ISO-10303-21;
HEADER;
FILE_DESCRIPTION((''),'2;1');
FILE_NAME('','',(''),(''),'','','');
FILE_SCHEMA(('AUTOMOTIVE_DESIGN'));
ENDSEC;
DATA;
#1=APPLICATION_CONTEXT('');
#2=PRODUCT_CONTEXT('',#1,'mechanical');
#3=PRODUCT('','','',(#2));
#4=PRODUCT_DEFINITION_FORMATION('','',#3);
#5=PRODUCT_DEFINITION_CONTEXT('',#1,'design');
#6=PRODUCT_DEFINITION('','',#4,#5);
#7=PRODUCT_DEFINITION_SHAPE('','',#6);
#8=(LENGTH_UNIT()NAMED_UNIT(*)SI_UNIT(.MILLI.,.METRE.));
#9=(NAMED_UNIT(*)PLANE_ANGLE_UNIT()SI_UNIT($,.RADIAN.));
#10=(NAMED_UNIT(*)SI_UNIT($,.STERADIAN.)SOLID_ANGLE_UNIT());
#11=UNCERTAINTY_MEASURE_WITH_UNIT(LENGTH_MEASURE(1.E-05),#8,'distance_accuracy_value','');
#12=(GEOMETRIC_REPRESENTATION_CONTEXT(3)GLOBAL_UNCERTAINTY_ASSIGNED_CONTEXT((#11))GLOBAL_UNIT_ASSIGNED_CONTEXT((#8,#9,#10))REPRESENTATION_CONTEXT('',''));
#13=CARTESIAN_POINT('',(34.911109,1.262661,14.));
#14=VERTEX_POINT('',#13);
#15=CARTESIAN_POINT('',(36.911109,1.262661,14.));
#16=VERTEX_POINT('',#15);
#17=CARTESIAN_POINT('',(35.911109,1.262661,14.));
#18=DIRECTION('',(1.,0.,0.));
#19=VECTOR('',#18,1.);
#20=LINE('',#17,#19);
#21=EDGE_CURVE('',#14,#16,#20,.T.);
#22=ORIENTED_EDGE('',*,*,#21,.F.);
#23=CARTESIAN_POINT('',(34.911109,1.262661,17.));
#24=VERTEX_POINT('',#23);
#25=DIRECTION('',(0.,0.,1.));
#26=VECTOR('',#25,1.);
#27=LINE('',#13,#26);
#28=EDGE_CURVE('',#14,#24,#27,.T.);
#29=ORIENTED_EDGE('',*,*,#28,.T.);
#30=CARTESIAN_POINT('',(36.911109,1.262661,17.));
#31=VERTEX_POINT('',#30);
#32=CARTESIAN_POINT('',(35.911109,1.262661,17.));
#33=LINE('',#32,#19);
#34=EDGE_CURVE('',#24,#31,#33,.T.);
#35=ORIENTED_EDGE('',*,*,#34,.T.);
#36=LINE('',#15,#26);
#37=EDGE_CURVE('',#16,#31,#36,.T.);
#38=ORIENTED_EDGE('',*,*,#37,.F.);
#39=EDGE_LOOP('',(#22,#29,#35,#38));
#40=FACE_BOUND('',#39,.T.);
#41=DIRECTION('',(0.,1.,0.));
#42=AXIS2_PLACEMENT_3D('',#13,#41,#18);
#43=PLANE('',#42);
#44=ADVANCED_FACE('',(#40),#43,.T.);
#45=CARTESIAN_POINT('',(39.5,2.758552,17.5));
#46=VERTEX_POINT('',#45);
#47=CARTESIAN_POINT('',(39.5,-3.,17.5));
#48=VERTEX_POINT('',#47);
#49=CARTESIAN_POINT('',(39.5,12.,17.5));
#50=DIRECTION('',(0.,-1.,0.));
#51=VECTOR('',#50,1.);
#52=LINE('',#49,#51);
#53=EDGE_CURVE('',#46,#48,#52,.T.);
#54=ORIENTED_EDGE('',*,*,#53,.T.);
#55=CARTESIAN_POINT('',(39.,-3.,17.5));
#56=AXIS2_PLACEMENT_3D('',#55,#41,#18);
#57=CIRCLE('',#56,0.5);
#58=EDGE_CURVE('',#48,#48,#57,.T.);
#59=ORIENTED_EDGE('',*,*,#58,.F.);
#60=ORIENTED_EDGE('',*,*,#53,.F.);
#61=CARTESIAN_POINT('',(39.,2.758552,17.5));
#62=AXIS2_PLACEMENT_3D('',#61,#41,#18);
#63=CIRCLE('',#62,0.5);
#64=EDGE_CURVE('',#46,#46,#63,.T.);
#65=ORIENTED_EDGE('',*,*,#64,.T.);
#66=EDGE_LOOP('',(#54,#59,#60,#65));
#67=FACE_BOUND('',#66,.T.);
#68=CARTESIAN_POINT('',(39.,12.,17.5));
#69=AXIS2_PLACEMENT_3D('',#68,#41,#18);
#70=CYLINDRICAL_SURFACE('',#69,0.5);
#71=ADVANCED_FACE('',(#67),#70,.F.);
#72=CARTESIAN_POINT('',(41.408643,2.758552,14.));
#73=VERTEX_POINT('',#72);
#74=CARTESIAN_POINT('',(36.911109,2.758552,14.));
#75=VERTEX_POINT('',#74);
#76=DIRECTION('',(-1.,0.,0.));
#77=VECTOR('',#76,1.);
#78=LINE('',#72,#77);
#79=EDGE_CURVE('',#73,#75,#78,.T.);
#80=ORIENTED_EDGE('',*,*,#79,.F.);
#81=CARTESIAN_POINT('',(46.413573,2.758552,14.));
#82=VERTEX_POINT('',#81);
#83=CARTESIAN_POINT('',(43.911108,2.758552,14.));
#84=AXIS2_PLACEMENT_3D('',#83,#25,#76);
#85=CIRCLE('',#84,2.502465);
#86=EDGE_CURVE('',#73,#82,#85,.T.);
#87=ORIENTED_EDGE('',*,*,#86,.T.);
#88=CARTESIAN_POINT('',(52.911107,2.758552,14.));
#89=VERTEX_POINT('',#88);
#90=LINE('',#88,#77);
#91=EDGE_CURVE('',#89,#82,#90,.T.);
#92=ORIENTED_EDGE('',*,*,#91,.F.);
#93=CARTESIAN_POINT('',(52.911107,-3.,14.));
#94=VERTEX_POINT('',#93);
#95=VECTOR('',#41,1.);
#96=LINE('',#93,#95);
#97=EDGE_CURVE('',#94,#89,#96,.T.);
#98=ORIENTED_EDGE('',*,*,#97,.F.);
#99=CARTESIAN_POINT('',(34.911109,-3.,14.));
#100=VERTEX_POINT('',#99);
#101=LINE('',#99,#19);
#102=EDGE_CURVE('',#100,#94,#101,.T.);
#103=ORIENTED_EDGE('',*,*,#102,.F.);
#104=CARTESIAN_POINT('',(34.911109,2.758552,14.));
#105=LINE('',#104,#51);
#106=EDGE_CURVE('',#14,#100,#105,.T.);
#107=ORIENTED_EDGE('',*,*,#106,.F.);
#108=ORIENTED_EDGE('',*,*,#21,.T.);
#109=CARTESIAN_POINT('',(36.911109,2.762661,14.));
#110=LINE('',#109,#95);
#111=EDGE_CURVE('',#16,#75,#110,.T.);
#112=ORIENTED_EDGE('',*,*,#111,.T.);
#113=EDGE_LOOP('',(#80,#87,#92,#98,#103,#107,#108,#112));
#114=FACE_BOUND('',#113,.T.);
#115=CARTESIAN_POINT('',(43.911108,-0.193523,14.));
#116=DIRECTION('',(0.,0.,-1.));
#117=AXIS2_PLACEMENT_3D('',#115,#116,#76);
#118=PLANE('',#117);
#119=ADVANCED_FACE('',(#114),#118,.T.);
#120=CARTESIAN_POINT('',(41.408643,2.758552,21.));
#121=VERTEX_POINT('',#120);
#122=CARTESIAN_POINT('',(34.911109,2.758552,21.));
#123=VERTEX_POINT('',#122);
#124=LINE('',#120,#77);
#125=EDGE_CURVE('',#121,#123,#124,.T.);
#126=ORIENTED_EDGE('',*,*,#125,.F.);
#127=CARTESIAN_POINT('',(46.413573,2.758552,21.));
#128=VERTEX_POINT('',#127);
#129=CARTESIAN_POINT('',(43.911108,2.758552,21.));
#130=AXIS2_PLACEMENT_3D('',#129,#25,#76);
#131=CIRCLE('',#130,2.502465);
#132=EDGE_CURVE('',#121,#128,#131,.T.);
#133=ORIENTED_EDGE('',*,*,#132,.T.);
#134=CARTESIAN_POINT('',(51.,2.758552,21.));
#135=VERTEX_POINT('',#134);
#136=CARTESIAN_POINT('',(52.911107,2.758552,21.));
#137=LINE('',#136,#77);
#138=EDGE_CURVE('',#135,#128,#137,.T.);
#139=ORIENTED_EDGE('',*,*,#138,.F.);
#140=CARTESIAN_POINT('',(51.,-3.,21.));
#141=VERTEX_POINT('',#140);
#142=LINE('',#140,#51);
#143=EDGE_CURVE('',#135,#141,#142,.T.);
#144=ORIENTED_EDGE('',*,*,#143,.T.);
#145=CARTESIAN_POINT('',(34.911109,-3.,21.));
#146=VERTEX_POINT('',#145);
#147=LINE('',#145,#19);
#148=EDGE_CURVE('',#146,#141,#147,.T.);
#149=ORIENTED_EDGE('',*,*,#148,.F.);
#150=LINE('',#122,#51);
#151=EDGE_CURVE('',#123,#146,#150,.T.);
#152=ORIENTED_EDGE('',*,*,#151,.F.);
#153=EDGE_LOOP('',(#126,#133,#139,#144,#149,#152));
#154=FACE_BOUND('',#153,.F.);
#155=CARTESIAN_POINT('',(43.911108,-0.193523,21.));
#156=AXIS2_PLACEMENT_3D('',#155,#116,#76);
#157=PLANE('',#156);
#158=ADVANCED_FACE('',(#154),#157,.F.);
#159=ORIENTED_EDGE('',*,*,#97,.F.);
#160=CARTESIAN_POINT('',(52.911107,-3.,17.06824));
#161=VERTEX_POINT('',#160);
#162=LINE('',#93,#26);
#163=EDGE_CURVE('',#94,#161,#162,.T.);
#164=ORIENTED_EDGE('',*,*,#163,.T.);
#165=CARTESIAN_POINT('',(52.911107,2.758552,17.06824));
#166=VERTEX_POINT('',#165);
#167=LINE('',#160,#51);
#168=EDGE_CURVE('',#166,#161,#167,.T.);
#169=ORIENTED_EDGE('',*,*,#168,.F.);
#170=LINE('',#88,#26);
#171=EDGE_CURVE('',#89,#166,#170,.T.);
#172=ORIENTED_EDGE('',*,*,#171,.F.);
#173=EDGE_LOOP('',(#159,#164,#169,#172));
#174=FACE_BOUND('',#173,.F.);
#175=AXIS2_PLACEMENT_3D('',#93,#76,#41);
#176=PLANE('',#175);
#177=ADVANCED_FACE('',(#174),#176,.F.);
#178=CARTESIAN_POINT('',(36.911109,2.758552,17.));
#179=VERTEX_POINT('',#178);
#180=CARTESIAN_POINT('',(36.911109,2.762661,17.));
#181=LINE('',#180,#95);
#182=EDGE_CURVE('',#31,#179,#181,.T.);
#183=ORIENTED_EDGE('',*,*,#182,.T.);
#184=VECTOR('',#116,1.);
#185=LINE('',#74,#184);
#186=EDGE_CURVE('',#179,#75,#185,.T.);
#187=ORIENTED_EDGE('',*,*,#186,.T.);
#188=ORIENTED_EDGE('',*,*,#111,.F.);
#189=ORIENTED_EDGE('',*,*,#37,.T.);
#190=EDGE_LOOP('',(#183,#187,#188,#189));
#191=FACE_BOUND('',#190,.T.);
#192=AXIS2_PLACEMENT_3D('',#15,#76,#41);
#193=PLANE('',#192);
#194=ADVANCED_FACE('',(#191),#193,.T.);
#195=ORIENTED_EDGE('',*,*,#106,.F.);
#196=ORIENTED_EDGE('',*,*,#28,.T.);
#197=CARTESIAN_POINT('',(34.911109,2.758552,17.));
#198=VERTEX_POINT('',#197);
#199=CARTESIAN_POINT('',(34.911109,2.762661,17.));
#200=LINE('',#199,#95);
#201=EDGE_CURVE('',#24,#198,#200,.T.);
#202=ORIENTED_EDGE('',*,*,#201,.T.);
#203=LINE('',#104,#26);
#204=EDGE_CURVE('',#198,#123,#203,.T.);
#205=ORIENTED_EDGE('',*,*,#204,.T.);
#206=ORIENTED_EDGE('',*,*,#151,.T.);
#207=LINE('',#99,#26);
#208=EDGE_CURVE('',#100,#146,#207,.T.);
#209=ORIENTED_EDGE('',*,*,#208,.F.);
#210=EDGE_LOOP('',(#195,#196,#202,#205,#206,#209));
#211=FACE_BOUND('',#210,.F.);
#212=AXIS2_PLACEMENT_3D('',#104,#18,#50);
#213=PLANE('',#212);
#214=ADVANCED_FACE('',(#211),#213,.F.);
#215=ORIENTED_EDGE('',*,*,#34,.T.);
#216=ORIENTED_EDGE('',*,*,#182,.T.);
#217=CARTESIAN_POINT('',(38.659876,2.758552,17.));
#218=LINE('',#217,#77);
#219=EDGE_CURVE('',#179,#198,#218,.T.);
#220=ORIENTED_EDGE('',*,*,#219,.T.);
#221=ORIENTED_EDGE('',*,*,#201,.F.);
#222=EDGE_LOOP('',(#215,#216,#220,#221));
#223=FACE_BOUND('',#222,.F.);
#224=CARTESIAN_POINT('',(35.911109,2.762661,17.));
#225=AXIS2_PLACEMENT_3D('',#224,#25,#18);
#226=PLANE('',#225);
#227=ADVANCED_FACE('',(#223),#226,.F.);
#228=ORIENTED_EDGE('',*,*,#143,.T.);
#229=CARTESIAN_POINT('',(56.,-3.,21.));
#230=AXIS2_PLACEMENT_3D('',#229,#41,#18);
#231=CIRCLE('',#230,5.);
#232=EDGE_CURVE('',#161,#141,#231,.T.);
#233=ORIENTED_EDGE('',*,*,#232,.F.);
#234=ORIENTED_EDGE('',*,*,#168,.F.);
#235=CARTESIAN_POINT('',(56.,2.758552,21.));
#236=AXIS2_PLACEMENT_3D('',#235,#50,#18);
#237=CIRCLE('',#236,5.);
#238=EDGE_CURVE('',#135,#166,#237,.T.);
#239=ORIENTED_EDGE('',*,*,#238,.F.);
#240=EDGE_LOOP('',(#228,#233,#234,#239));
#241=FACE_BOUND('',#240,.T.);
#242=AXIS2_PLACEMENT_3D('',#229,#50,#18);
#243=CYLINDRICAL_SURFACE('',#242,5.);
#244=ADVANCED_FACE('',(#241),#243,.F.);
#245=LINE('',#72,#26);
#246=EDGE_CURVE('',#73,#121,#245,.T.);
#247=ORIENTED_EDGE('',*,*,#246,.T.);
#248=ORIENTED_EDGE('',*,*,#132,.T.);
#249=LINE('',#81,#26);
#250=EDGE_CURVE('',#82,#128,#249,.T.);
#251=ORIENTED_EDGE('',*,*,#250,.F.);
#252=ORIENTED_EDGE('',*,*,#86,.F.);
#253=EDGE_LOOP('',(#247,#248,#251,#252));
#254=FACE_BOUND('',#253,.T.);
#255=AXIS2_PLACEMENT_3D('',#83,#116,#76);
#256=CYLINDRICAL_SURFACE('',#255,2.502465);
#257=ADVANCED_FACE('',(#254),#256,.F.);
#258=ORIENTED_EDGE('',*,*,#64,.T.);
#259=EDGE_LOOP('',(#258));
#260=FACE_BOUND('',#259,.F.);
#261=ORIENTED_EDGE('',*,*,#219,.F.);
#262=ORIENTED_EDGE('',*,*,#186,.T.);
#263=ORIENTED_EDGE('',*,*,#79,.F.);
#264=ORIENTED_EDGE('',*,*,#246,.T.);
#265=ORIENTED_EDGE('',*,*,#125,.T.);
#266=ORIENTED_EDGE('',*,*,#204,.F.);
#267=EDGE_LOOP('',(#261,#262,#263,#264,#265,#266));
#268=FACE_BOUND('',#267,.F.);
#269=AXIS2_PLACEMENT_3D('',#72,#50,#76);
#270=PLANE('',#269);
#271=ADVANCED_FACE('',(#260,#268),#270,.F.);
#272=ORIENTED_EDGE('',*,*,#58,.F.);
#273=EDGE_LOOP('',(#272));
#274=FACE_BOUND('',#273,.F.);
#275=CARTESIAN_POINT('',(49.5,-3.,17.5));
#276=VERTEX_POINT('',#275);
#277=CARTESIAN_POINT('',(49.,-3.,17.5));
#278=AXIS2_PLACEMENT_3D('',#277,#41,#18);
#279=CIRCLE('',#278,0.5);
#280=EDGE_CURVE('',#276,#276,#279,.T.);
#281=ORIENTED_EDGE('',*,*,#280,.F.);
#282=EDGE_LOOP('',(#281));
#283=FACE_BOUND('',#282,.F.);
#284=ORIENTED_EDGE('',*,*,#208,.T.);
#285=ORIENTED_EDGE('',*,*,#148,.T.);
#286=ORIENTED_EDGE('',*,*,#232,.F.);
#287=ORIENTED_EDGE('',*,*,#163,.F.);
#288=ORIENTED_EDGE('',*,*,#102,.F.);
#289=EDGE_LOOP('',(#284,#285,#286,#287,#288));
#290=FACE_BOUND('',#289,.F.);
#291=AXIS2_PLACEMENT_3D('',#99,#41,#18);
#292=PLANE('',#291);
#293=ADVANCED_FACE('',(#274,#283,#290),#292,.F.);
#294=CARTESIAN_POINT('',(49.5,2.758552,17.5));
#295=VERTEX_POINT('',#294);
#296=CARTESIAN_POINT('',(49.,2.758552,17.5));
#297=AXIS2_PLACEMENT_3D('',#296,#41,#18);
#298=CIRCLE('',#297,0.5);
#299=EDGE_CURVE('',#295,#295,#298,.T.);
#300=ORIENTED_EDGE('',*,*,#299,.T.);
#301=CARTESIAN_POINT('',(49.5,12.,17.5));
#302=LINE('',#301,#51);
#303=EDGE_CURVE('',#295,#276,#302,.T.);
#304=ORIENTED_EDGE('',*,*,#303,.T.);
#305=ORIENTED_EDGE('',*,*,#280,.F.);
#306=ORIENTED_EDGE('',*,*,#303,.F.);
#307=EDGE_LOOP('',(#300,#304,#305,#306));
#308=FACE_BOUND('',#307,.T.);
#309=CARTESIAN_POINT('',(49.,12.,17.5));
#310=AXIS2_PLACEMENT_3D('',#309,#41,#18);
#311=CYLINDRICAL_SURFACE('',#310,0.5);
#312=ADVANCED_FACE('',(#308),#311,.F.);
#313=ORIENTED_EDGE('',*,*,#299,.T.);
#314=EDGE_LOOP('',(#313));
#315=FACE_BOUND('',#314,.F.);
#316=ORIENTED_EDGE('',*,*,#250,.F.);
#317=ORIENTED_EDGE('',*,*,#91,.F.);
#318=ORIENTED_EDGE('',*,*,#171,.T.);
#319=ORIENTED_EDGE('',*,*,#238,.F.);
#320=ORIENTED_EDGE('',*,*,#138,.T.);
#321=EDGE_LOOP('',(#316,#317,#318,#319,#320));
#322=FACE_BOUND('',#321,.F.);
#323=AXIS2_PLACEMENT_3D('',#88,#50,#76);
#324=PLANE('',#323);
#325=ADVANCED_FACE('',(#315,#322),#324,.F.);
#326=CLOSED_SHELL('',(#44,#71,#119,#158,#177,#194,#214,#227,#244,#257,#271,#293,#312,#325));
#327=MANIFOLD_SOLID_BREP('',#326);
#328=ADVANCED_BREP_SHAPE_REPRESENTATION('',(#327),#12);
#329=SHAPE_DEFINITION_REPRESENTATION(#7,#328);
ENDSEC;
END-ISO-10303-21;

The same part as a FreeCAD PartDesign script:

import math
import FreeCAD as App
import Part
import Sketcher
from FreeCAD import Vector
Q = App.Units.Quantity

doc = App.newDocument("Part")
body = doc.addObject("PartDesign::Body", "Body")

sketch1 = body.newObject("Sketcher::SketchObject", "Sketch")
sketch1.AttachmentSupport = (doc.getObject("XZ_Plane"), [""])
sketch1.MapMode = "FlatFace"
sketch1.AttachmentOffset = App.Placement(Vector(0, 0, -12), App.Rotation())
sketch1.addGeometry(Part.Circle(Vector(39, 17.5, 0), Vector(0, 0, 1), 0.5), False)
sketch1.addConstraint([
    Sketcher.Constraint("Diameter", 0, Q("1 mm")),
    Sketcher.Constraint("DistanceX", -1, 1, 0, 3, Q("39 mm")),
    Sketcher.Constraint("DistanceY", -1, 1, 0, 3, Q("17.5 mm")),
])
pad1 = body.newObject("PartDesign::Pad", "Pad")
pad1.Profile = sketch1
pad1.Length = 20
body2 = doc.addObject("PartDesign::Body", "Body001")
body2.AllowCompound = True

sketch2 = body2.newObject("Sketcher::SketchObject", "Sketch001")
sketch2.AttachmentSupport = (doc.getObject("XZ_Plane001"), [""])
sketch2.MapMode = "FlatFace"
sketch2.AttachmentOffset = App.Placement(Vector(0, 0, -12), App.Rotation())
sketch2.addGeometry(Part.Circle(Vector(49, 17.5, 0), Vector(0, 0, 1), 0.5), False)
sketch2.addConstraint([
    Sketcher.Constraint("Diameter", 0, Q("1 mm")),
    Sketcher.Constraint("DistanceX", -1, 1, 0, 3, Q("49 mm")),
    Sketcher.Constraint("DistanceY", -1, 1, 0, 3, Q("17.5 mm")),
])
pad2 = body2.newObject("PartDesign::Pad", "Pad001")
pad2.Profile = sketch2
pad2.Length = 20
doc.recompute()

boolean = body2.newObject("PartDesign::Boolean", "Boolean")
boolean.Type = "Fuse"
boolean.addObjects([body])
body3 = doc.addObject("PartDesign::Body", "Body002")

sketch3 = body3.newObject("Sketcher::SketchObject", "Sketch002")
sketch3.AttachmentSupport = (doc.getObject("XZ_Plane002"), [""])
sketch3.MapMode = "FlatFace"
sketch3.AttachmentOffset = App.Placement(Vector(0, 0, 3), App.Rotation())
sketch3.addGeometry(Part.Circle(Vector(56, 21, 0), Vector(0, 0, 1), 5), False)
sketch3.addConstraint([
    Sketcher.Constraint("Diameter", 0, Q("10 mm")),
    Sketcher.Constraint("DistanceX", -1, 1, 0, 3, Q("56 mm")),
    Sketcher.Constraint("DistanceY", -1, 1, 0, 3, Q("21 mm")),
])
pad3 = body3.newObject("PartDesign::Pad", "Pad002")
pad3.Profile = sketch3
pad3.Length = 13
pad3.Reversed = True
body4 = doc.addObject("PartDesign::Body", "Body003")

sketch4 = body4.newObject("Sketcher::SketchObject", "Sketch003")
sketch4.AttachmentSupport = (doc.getObject("XY_Plane003"), [""])
sketch4.MapMode = "FlatFace"
sketch4.addGeometry([
    Part.ArcOfCircle(Part.Circle(Vector(43.9, 2.8, 0), Vector(0, 0, 1), 2.5), math.radians(180), math.radians(360)),
    Part.LineSegment(Vector(41.4, 2.8, 0), Vector(34.9, 2.8, 0)),
    Part.LineSegment(Vector(34.9, 2.8, 0), Vector(34.9, -3, 0)),
    Part.LineSegment(Vector(34.9, -3, 0), Vector(52.9, -3, 0)),
    Part.LineSegment(Vector(52.9, -3, 0), Vector(52.9, 2.8, 0)),
    Part.LineSegment(Vector(52.9, 2.8, 0), Vector(46.4, 2.8, 0)),
], False)
sketch4.addConstraint([
    Sketcher.Constraint("Coincident", 0, 1, 1, 1),
    Sketcher.Constraint("Coincident", 1, 2, 2, 1),
    Sketcher.Constraint("Coincident", 2, 2, 3, 1),
    Sketcher.Constraint("Coincident", 3, 2, 4, 1),
    Sketcher.Constraint("Coincident", 4, 2, 5, 1),
    Sketcher.Constraint("Coincident", 5, 2, 0, 2),
    Sketcher.Constraint("Horizontal", 1),
    Sketcher.Constraint("Vertical", 2),
    Sketcher.Constraint("Horizontal", 3),
    Sketcher.Constraint("Vertical", 4),
    Sketcher.Constraint("Horizontal", 5),
    Sketcher.Constraint("Horizontal", 1, 2, 4, 2),
    Sketcher.Constraint("Equal", 1, 5),
    Sketcher.Constraint("DistanceY", 2, 2, -1, 1, Q("3 mm")),
    Sketcher.Constraint("DistanceX", 1, 2, 0, 3, Q("8.999999 mm")),
    Sketcher.Constraint("Radius", 0, Q("2.502465 mm")),
    Sketcher.Constraint("DistanceY", 2, 2, 2, 1, Q("5.758552 mm")),
    Sketcher.Constraint("DistanceY", -1, 1, 0, 3, Q("2.758552 mm")),
    Sketcher.Constraint("DistanceX", -1, 1, 1, 2, Q("34.911109 mm")),
])
pad4 = body4.newObject("PartDesign::Pad", "Pad003")
pad4.Profile = sketch4
pad4.Length = 7

sketch5 = body4.newObject("Sketcher::SketchObject", "Sketch004")
sketch5.AttachmentSupport = (doc.getObject("XY_Plane003"), [""])
sketch5.MapMode = "FlatFace"
sketch5.addGeometry([
    Part.LineSegment(Vector(34.9, 4.3, 0), Vector(34.9, 1.3, 0)),
    Part.LineSegment(Vector(34.9, 1.3, 0), Vector(36.9, 1.3, 0)),
    Part.LineSegment(Vector(36.9, 1.3, 0), Vector(36.9, 4.3, 0)),
    Part.LineSegment(Vector(36.9, 4.3, 0), Vector(34.9, 4.3, 0)),
], False)
sketch5.addConstraint([
    Sketcher.Constraint("Coincident", 0, 2, 1, 1),
    Sketcher.Constraint("Coincident", 1, 2, 2, 1),
    Sketcher.Constraint("Coincident", 2, 2, 3, 1),
    Sketcher.Constraint("Coincident", 3, 2, 0, 1),
    Sketcher.Constraint("Vertical", 0),
    Sketcher.Constraint("Horizontal", 1),
    Sketcher.Constraint("Vertical", 2),
    Sketcher.Constraint("Horizontal", 3),
    Sketcher.Constraint("DistanceX", 1, 1, 1, 2, Q("2 mm")),
    Sketcher.Constraint("DistanceY", 0, 2, 0, 1, Q("3 mm")),
    Sketcher.Constraint("DistanceX", -1, 1, 0, 2, Q("34.911109 mm")),
    Sketcher.Constraint("DistanceY", -1, 1, 0, 2, Q("1.262661 mm")),
])
pocket1 = body4.newObject("PartDesign::Pocket", "Pocket")
pocket1.Profile = sketch5
pocket1.Length = 3
pocket1.Reversed = True
body5 = doc.addObject("PartDesign::Body", "Body004")
doc.recompute()

body4.Placement = App.Placement(Vector(0, 0, 14), App.Rotation(Vector(0, 0, 1), 0))
boolean2 = body5.newObject("PartDesign::Boolean", "Boolean001")
boolean2.Type = "Fuse"
boolean2.addObjects([body4])
doc.recompute()

boolean3 = body5.newObject("PartDesign::Boolean", "Boolean002")
boolean3.Type = "Cut"
boolean3.addObjects([body3])
doc.recompute()

boolean4 = body5.newObject("PartDesign::Boolean", "Boolean003")
boolean4.Type = "Cut"
boolean4.addObjects([body2])

doc.recompute()
